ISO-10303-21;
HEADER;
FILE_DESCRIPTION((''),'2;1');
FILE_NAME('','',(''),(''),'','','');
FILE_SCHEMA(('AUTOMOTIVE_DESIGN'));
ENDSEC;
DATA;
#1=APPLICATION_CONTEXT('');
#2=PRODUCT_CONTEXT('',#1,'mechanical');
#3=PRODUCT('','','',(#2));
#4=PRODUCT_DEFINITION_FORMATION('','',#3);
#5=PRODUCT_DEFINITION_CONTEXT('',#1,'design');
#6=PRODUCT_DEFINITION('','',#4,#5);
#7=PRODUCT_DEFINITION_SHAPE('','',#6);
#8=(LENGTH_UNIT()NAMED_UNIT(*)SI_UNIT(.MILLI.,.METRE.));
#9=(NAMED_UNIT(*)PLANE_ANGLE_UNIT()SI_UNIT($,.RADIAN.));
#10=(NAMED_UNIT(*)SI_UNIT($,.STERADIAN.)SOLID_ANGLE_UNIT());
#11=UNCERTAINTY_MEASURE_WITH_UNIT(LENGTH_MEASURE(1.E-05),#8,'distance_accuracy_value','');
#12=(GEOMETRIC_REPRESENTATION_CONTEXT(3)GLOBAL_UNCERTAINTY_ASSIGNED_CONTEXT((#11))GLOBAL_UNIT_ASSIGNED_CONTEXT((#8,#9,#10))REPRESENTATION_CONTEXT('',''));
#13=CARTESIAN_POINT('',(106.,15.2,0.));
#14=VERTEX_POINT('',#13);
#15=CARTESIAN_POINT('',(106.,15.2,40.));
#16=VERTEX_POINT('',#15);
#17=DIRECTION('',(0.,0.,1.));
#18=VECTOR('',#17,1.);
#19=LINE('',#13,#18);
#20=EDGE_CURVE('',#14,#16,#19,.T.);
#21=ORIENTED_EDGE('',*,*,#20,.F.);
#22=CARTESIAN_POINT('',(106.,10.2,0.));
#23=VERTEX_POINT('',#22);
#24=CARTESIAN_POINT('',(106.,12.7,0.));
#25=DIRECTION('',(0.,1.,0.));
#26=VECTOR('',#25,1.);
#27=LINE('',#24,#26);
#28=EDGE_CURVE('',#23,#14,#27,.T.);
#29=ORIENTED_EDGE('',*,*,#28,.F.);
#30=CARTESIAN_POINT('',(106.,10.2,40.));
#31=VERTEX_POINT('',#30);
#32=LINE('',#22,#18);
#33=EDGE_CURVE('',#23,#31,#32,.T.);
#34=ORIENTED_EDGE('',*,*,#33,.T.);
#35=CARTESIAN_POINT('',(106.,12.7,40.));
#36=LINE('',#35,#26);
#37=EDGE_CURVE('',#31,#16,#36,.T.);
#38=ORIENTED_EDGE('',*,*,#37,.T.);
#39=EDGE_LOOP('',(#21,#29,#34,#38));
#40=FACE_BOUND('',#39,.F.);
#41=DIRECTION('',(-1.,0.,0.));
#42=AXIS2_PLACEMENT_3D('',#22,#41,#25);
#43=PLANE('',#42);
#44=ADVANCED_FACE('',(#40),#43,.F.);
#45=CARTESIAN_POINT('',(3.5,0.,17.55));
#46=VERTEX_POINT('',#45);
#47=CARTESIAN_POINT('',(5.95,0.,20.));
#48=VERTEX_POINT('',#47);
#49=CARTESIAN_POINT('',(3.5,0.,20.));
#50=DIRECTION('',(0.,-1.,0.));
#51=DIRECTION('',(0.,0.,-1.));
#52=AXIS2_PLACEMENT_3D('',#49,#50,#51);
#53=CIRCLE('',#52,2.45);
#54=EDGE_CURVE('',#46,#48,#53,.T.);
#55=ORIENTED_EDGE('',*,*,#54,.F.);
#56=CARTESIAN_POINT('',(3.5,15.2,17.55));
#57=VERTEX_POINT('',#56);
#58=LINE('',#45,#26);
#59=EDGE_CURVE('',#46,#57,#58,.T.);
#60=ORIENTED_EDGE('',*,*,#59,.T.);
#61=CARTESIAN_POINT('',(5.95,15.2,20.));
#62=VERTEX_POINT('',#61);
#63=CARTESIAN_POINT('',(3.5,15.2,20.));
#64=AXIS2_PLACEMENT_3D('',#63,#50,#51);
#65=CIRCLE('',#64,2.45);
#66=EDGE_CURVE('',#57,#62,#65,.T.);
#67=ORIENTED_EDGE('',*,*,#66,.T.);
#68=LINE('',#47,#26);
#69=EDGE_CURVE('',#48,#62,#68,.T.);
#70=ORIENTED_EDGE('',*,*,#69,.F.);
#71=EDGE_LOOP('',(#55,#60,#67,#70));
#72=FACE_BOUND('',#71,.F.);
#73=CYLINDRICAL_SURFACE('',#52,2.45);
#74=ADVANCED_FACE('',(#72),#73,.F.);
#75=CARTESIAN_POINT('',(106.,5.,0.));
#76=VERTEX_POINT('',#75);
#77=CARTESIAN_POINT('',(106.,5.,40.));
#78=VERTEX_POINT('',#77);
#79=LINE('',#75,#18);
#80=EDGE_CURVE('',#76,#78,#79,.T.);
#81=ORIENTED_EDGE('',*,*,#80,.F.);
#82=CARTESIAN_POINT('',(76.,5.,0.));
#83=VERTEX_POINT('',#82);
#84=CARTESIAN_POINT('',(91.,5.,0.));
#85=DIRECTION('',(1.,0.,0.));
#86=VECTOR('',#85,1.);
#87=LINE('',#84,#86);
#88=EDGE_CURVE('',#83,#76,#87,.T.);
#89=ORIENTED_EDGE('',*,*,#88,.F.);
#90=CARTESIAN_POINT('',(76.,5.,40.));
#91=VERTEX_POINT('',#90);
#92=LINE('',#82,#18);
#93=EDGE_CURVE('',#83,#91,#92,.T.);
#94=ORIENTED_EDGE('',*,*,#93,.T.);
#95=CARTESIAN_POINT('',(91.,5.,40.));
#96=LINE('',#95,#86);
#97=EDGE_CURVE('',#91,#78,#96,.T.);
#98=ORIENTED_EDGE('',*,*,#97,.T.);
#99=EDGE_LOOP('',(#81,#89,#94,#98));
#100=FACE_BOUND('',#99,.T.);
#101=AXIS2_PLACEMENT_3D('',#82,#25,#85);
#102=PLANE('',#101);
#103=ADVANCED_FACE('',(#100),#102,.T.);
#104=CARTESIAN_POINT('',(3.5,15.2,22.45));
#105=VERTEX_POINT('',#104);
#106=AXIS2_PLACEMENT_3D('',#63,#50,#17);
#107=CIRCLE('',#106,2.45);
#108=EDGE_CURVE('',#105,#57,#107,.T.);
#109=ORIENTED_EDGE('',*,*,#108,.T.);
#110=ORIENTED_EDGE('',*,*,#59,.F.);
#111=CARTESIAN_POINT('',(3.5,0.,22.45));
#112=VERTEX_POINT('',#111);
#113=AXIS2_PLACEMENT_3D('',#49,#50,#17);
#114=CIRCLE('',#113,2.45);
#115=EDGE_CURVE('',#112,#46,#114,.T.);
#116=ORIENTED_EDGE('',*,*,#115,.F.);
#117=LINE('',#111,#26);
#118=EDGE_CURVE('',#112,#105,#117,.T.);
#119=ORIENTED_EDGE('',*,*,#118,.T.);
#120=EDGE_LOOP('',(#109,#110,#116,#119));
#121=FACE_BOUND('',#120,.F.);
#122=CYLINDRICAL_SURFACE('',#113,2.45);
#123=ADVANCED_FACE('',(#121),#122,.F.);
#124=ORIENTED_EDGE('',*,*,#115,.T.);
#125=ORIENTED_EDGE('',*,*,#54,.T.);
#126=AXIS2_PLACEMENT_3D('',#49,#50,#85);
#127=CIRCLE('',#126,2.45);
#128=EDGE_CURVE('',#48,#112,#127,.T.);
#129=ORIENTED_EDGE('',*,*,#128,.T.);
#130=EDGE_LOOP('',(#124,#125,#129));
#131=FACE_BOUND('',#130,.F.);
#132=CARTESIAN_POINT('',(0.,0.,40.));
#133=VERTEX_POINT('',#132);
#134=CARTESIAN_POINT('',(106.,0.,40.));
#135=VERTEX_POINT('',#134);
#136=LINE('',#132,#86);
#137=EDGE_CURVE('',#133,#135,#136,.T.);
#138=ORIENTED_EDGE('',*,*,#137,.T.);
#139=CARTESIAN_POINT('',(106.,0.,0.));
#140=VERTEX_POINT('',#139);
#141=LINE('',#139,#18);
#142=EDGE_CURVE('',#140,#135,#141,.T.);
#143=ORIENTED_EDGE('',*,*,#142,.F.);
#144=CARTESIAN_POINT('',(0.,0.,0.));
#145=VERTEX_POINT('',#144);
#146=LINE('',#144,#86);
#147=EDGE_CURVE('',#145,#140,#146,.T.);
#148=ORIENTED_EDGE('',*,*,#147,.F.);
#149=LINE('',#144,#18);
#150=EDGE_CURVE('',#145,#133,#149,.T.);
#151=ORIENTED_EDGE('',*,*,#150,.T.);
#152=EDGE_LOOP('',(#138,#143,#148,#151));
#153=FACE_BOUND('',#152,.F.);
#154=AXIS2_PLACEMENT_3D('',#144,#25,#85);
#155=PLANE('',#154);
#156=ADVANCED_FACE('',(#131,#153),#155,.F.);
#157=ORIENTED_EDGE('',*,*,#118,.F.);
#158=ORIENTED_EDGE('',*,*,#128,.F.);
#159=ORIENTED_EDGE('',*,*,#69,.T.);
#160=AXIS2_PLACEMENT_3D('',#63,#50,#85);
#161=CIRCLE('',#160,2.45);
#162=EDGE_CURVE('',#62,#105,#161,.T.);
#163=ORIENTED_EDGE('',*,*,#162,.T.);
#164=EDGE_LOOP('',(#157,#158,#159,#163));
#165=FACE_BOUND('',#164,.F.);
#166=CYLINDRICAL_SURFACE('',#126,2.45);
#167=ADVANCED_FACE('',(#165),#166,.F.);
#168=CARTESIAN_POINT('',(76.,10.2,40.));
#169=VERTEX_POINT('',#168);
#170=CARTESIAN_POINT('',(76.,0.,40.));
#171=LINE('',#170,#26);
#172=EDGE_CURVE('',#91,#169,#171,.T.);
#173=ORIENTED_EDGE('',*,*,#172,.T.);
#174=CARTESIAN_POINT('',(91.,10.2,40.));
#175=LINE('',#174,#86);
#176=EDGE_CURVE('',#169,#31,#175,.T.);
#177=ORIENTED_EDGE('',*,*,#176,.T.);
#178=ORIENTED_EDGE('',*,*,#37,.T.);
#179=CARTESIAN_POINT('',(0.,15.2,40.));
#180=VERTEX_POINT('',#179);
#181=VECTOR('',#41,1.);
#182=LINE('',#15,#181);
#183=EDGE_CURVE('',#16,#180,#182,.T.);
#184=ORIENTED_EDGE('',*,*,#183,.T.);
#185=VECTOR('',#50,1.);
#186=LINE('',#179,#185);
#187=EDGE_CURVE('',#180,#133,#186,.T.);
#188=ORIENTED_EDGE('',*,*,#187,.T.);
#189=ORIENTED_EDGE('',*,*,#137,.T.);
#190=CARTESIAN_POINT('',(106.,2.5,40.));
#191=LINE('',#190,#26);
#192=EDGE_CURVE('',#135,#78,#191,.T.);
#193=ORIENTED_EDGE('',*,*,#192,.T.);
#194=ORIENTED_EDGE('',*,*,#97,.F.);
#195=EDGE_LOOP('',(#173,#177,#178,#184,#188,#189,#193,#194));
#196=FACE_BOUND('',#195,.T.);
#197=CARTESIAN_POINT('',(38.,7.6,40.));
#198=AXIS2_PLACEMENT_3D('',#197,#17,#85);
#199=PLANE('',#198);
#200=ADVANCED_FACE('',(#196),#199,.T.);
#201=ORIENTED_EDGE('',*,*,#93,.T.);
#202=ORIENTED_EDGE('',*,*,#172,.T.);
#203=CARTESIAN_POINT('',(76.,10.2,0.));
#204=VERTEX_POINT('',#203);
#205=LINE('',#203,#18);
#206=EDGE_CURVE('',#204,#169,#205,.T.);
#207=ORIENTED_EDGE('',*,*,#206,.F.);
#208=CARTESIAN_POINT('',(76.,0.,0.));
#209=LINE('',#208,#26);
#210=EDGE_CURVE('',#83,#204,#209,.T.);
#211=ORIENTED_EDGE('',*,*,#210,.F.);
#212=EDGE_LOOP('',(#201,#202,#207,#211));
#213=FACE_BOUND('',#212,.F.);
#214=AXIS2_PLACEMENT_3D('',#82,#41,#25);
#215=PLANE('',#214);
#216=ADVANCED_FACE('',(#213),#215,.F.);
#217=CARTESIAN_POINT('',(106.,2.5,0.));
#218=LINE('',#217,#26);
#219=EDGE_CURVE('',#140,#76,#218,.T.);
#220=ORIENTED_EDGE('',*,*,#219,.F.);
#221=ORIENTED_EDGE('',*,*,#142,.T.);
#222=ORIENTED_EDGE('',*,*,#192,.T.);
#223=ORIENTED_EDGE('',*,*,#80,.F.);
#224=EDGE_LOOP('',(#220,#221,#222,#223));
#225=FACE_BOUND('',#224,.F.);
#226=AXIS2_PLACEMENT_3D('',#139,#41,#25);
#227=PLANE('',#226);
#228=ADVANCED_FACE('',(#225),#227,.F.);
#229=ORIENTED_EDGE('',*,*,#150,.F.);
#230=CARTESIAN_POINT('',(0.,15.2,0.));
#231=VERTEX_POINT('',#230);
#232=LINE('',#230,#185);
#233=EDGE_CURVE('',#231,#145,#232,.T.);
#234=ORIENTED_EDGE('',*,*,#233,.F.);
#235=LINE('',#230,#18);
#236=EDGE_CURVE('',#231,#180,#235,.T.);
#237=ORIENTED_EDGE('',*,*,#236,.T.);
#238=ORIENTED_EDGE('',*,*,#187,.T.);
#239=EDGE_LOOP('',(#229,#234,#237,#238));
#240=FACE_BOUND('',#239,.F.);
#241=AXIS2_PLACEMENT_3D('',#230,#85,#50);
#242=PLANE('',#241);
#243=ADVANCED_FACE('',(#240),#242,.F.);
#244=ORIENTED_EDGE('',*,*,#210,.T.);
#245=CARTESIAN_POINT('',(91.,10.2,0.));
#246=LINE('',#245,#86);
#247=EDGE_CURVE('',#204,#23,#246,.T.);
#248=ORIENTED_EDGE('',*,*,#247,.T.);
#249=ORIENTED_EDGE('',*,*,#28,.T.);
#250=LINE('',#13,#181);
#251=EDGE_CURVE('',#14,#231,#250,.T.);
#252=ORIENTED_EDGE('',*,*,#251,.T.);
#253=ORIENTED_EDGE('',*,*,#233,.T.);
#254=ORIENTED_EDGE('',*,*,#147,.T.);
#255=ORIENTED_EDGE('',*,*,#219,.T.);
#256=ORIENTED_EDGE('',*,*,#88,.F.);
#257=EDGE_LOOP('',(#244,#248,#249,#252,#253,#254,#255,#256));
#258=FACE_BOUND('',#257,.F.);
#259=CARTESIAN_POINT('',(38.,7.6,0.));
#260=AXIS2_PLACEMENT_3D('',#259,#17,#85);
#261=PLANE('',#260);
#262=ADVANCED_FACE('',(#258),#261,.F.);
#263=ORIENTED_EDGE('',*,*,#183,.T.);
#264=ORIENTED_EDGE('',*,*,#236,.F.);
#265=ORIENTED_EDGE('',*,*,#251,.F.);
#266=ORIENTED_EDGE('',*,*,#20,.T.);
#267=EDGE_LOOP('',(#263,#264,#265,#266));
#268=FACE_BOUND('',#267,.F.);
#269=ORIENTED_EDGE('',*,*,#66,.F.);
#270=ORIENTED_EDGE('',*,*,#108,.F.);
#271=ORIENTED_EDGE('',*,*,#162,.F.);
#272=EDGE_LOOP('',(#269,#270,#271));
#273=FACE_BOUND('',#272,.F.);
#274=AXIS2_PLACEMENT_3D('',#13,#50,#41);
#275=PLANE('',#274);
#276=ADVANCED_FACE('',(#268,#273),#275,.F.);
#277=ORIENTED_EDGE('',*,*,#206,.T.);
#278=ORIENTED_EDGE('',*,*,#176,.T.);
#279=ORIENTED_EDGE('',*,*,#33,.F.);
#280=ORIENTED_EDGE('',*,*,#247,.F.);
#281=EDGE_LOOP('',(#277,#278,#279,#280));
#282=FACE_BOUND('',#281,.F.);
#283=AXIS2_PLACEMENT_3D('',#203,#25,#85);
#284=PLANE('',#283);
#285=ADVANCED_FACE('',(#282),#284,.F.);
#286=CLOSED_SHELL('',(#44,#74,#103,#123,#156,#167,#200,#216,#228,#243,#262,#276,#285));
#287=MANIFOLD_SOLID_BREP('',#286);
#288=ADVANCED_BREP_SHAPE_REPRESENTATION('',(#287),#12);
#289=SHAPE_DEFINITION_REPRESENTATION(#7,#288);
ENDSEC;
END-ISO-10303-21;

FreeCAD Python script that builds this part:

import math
import FreeCAD as App
import Part
import Sketcher
Q = App.Units.Quantity

doc = App.newDocument("Part")
body = doc.addObject("PartDesign::Body", "Body")

# Sketch on XY plane
sketch1 = doc.addObject("Sketcher::SketchObject", "Sketch")
body.addObject(sketch1)
sketch1.AttachmentSupport = (doc.XY_Plane, [""])
sketch1.MapMode = "FlatFace"
sketch1.addGeometry([
    Part.LineSegment(App.Vector(0, 15, 0), App.Vector(0, 0, 0)),  # 0
    Part.LineSegment(App.Vector(0, 0, 0), App.Vector(106, 0, 0)),  # 1
    Part.LineSegment(App.Vector(106, 0, 0), App.Vector(106, 5, 0)),  # 2
    Part.LineSegment(App.Vector(106, 5, 0), App.Vector(76, 5, 0)),  # 3
    Part.LineSegment(App.Vector(76, 5, 0), App.Vector(76, 10, 0)),  # 4
    Part.LineSegment(App.Vector(76, 10, 0), App.Vector(106, 10, 0)),  # 5
    Part.LineSegment(App.Vector(106, 10, 0), App.Vector(106, 15, 0)),  # 6
    Part.LineSegment(App.Vector(106, 15, 0), App.Vector(0, 15, 0)),  # 7
], False)
sketch1.addConstraint([
    Sketcher.Constraint("Coincident", 0, 2, 1, 1),
    Sketcher.Constraint("Coincident", 1, 2, 2, 1),
    Sketcher.Constraint("Coincident", 2, 2, 3, 1),
    Sketcher.Constraint("Coincident", 3, 2, 4, 1),
    Sketcher.Constraint("Coincident", 4, 2, 5, 1),
    Sketcher.Constraint("Coincident", 5, 2, 6, 1),
    Sketcher.Constraint("Coincident", 6, 2, 7, 1),
    Sketcher.Constraint("Coincident", 7, 2, 0, 1),
    Sketcher.Constraint("Vertical", 0),
    Sketcher.Constraint("Horizontal", 1),
    Sketcher.Constraint("Vertical", 2),
    Sketcher.Constraint("Horizontal", 3),
    Sketcher.Constraint("Vertical", 4),
    Sketcher.Constraint("Horizontal", 5),
    Sketcher.Constraint("Vertical", 6),
    Sketcher.Constraint("Horizontal", 7),
    Sketcher.Constraint("Coincident", 0, 2, -1, 1),
    Sketcher.Constraint("Vertical", 2, 2, 5, 2),
    Sketcher.Constraint("Equal", 2, 6),
    Sketcher.Constraint("DistanceX", 1, 1, 1, 2, Q("106 mm")),
    Sketcher.Constraint("DistanceX", 3, 2, 3, 1, Q("30 mm")),
    Sketcher.Constraint("DistanceY", 2, 1, 2, 2, Q("5 mm")),
    Sketcher.Constraint("DistanceY", 0, 2, 0, 1, Q("15.2 mm")),
])
pad1 = doc.addObject("PartDesign::Pad", "Pad")
body.addObject(pad1)
pad1.Profile = sketch1
pad1.Length = 40

# Sketch on XZ plane
sketch2 = doc.addObject("Sketcher::SketchObject", "Sketch001")
body.addObject(sketch2)
sketch2.AttachmentSupport = (doc.XZ_Plane, [""])
sketch2.MapMode = "FlatFace"
sketch2.addGeometry([
    Part.ArcOfCircle(Part.Circle(App.Vector(3.5, 20, 0), App.Vector(0, 0, 1), 2.5), math.radians(0), math.radians(90)),
    Part.ArcOfCircle(Part.Circle(App.Vector(3.5, 20, 0), App.Vector(0, 0, 1), 2.5), math.radians(90), math.radians(270)),
    Part.ArcOfCircle(Part.Circle(App.Vector(3.5, 20, 0), App.Vector(0, 0, 1), 2.5), math.radians(-90), math.radians(0)),
], False)
sketch2.addConstraint([
    Sketcher.Constraint("Tangent", 0, 2, 1, 1),
    Sketcher.Constraint("Tangent", 1, 2, 2, 1),
    Sketcher.Constraint("Tangent", 2, 2, 0, 1),
    Sketcher.Constraint("Horizontal", 1, 3, 2, 2),
    Sketcher.Constraint("Vertical", 2, 3, 0, 2),
    Sketcher.Constraint("Vertical", 0, 2, 1, 2),
    Sketcher.Constraint("Radius", 0, Q("2.45 mm")),
    Sketcher.Constraint("DistanceY", -1, 1, 0, 3, Q("20 mm")),
    Sketcher.Constraint("DistanceX", -1, 1, 0, 3, Q("3.5 mm")),
])
pocket1 = doc.addObject("PartDesign::Pocket", "Pocket")
body.addObject(pocket1)
pocket1.Profile = sketch2
pocket1.Length = 25

doc.recompute()
